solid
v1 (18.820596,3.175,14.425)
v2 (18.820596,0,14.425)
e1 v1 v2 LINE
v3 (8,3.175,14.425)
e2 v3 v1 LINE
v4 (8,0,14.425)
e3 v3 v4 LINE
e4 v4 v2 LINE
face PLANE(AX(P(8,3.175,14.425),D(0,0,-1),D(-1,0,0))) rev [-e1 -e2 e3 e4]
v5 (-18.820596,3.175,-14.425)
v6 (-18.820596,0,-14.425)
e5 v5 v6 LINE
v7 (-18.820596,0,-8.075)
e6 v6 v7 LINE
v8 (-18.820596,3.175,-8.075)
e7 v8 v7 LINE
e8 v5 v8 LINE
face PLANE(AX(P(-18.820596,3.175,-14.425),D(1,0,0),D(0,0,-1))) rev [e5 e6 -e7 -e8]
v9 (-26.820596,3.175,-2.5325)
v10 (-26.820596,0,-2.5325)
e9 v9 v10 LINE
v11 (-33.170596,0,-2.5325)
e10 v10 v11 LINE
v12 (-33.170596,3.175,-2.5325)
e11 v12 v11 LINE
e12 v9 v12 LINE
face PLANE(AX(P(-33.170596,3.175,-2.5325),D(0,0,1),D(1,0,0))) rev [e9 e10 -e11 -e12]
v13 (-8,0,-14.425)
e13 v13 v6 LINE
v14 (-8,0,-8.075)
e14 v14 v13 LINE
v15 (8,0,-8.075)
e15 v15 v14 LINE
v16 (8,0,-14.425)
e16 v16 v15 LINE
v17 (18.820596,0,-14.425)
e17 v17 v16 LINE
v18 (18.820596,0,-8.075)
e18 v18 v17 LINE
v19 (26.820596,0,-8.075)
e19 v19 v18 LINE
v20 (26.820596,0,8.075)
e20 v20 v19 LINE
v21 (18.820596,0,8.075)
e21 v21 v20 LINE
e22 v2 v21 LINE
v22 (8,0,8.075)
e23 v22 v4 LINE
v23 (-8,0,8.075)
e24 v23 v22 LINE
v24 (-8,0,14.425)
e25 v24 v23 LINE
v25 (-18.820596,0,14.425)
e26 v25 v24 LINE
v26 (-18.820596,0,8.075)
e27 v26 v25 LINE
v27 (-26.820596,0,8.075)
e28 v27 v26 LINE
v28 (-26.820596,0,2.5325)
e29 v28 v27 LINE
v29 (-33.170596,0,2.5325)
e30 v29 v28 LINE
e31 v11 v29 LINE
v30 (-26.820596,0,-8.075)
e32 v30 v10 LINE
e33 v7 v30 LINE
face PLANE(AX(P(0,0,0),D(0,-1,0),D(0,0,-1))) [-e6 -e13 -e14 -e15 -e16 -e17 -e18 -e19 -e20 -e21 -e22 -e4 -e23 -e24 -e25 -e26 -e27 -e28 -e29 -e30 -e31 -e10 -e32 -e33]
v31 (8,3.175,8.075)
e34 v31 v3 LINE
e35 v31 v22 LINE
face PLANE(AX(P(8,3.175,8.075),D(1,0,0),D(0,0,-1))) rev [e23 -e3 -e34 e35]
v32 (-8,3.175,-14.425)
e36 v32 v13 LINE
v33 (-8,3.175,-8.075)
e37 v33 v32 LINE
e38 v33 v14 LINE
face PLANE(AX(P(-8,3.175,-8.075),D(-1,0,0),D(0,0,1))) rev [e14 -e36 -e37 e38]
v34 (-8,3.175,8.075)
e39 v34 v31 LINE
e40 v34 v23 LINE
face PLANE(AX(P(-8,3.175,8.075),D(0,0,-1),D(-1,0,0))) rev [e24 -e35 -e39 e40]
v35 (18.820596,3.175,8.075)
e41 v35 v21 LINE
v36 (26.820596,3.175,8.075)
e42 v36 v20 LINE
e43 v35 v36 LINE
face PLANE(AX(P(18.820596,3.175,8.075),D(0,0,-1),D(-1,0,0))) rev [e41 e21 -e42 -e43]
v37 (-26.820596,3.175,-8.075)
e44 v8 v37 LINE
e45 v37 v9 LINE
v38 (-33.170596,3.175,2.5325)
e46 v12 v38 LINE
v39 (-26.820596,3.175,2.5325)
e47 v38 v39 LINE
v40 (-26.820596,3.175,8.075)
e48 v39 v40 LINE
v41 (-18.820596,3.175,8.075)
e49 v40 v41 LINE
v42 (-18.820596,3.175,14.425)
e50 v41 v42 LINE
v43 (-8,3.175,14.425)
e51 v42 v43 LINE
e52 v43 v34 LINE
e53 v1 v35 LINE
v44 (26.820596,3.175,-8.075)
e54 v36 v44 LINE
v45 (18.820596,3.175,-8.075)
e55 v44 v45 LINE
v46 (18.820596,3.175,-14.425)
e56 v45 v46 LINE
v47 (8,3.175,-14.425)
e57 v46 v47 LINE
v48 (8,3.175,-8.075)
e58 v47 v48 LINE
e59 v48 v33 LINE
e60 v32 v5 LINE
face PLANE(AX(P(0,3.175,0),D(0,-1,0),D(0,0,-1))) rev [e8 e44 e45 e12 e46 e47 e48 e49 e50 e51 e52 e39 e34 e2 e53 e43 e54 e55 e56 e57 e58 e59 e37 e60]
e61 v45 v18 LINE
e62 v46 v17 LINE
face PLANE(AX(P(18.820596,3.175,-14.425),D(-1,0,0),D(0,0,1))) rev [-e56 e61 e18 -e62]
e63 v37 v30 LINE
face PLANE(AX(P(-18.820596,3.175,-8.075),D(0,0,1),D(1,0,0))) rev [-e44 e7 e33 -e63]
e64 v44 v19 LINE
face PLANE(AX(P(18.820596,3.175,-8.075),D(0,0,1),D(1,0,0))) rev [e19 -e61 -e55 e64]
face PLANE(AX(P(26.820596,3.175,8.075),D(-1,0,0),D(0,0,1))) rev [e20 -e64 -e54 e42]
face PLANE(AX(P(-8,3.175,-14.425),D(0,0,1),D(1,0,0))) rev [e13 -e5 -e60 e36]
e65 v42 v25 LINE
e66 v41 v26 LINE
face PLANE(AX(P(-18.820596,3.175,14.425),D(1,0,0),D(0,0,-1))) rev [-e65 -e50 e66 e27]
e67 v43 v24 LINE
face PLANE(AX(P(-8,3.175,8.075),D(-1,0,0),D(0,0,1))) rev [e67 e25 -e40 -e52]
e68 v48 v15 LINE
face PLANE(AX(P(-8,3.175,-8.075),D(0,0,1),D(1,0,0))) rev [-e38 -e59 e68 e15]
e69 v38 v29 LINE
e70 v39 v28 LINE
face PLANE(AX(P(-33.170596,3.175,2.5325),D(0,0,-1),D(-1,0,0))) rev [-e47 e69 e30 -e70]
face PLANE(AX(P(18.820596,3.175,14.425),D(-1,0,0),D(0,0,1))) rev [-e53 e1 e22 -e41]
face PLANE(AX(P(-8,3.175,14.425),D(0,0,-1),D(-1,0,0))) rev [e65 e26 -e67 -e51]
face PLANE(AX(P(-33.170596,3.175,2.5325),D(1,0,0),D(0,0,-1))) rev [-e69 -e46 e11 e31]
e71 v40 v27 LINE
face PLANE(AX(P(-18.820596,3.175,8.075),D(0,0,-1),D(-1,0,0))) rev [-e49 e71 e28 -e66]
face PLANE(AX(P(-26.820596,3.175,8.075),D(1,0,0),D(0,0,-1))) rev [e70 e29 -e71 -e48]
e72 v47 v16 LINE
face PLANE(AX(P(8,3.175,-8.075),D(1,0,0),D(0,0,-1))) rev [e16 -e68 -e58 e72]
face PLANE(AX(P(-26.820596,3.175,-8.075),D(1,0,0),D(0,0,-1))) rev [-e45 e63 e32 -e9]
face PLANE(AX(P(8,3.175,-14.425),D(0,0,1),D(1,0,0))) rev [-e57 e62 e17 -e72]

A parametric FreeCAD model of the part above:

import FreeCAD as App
import Part
import Sketcher

V = App.Vector
Q = App.Units.Quantity

doc = App.newDocument("Part")
body = doc.addObject("PartDesign::Body", "Body")

sketch1 = body.newObject("Sketcher::SketchObject", "Sketch")
sketch1.AttachmentSupport = (doc.getObject("XZ_Plane"), [""])
sketch1.MapMode = "FlatFace"
sketch1.addGeometry([
    Part.LineSegment(V(-33, -3, 0), V(-33, 3, 0)),
    Part.LineSegment(V(-33, 3, 0), V(-27, 3, 0)),
    Part.LineSegment(V(-27, 3, 0), V(-27, 8, 0)),
    Part.LineSegment(V(-27, 8, 0), V(-19, 8, 0)),
    Part.LineSegment(V(-19, 8, 0), V(-19, 14, 0)),
    Part.LineSegment(V(-19, 14, 0), V(-8, 14, 0)),
    Part.LineSegment(V(-8, 14, 0), V(-8, 8, 0)),
    Part.LineSegment(V(-8, 8, 0), V(8, 8, 0)),
    Part.LineSegment(V(8, 8, 0), V(8, 14, 0)),
    Part.LineSegment(V(8, 14, 0), V(19, 14, 0)),
    Part.LineSegment(V(19, 14, 0), V(19, 8, 0)),
    Part.LineSegment(V(19, 8, 0), V(27, 8, 0)),
    Part.LineSegment(V(27, 8, 0), V(27, -8, 0)),
    Part.LineSegment(V(27, -8, 0), V(19, -8, 0)),
    Part.LineSegment(V(19, -8, 0), V(19, -14, 0)),
    Part.LineSegment(V(19, -14, 0), V(8, -14, 0)),
    Part.LineSegment(V(8, -14, 0), V(8, -8, 0)),
    Part.LineSegment(V(8, -8, 0), V(-8, -8, 0)),
    Part.LineSegment(V(-8, -8, 0), V(-8, -14, 0)),
    Part.LineSegment(V(-8, -14, 0), V(-19, -14, 0)),
    Part.LineSegment(V(-19, -14, 0), V(-19, -8, 0)),
    Part.LineSegment(V(-19, -8, 0), V(-27, -8, 0)),
    Part.LineSegment(V(-27, -8, 0), V(-27, -3, 0)),
    Part.LineSegment(V(-27, -3, 0), V(-33, -3, 0)),
], False)
sketch1.addConstraint([
    Sketcher.Constraint("Coincident", 0, 2, 1, 1),
    Sketcher.Constraint("Coincident", 1, 2, 2, 1),
    Sketcher.Constraint("Coincident", 2, 2, 3, 1),
    Sketcher.Constraint("Coincident", 3, 2, 4, 1),
    Sketcher.Constraint("Coincident", 4, 2, 5, 1),
    Sketcher.Constraint("Coincident", 5, 2, 6, 1),
    Sketcher.Constraint("Coincident", 6, 2, 7, 1),
    Sketcher.Constraint("Coincident", 7, 2, 8, 1),
    Sketcher.Constraint("Coincident", 8, 2, 9, 1),
    Sketcher.Constraint("Coincident", 9, 2, 10, 1),
    Sketcher.Constraint("Coincident", 10, 2, 11, 1),
    Sketcher.Constraint("Coincident", 11, 2, 12, 1),
    Sketcher.Constraint("Coincident", 12, 2, 13, 1),
    Sketcher.Constraint("Coincident", 13, 2, 14, 1),
    Sketcher.Constraint("Coincident", 14, 2, 15, 1),
    Sketcher.Constraint("Coincident", 15, 2, 16, 1),
    Sketcher.Constraint("Coincident", 16, 2, 17, 1),
    Sketcher.Constraint("Coincident", 17, 2, 18, 1),
    Sketcher.Constraint("Coincident", 18, 2, 19, 1),
    Sketcher.Constraint("Coincident", 19, 2, 20, 1),
    Sketcher.Constraint("Coincident", 20, 2, 21, 1),
    Sketcher.Constraint("Coincident", 21, 2, 22, 1),
    Sketcher.Constraint("Coincident", 22, 2, 23, 1),
    Sketcher.Constraint("Coincident", 23, 2, 0, 1),
    Sketcher.Constraint("Vertical", 0),
    Sketcher.Constraint("Horizontal", 1),
    Sketcher.Constraint("Vertical", 2),
    Sketcher.Constraint("Horizontal", 3),
    Sketcher.Constraint("Vertical", 4),
    Sketcher.Constraint("Horizontal", 5),
    Sketcher.Constraint("Vertical", 6),
    Sketcher.Constraint("Horizontal", 7),
    Sketcher.Constraint("Vertical", 8),
    Sketcher.Constraint("Horizontal", 9),
    Sketcher.Constraint("Vertical", 10),
    Sketcher.Constraint("Horizontal", 11),
    Sketcher.Constraint("Vertical", 12),
    Sketcher.Constraint("Horizontal", 13),
    Sketcher.Constraint("Vertical", 14),
    Sketcher.Constraint("Horizontal", 15),
    Sketcher.Constraint("Vertical", 16),
    Sketcher.Constraint("Horizontal", 17),
    Sketcher.Constraint("Vertical", 18),
    Sketcher.Constraint("Horizontal", 19),
    Sketcher.Constraint("Vertical", 20),
    Sketcher.Constraint("Horizontal", 21),
    Sketcher.Constraint("Vertical", 22),
    Sketcher.Constraint("Horizontal", 23),
    Sketcher.Constraint("Symmetric", 2, 2, 12, 2, -1, 1),
    Sketcher.Constraint("Symmetric", 4, 2, 14, 2, -1, 1),
    Sketcher.Constraint("Symmetric", 6, 2, 16, 2, -1, 1),
    Sketcher.Constraint("Symmetric", 8, 2, 18, 2, -1, 1),
    Sketcher.Constraint("Symmetric", 10, 2, 20, 2, -1, 1),
    Sketcher.Constraint("Symmetric", 5, 2, 8, 2, -2),
    Sketcher.Constraint("Symmetric", 3, 2, 10, 2, -2),
    Sketcher.Constraint("Symmetric", 1, 2, 22, 2, -1),
    Sketcher.Constraint("Horizontal", 3, 2, 6, 2),
    Sketcher.Constraint("Equal", 23, 4),
    Sketcher.Constraint("DistanceX", 3, 1, 3, 2, Q("8 mm")),
    Sketcher.Constraint("DistanceX", 7, 1, 7, 2, Q("16 mm")),
    Sketcher.Constraint("DistanceX", 1, 1, 1, 2, Q("6.35 mm")),
    Sketcher.Constraint("DistanceY", 12, 2, 12, 1, Q("16.15 mm")),
    Sketcher.Constraint("DistanceY", 0, 1, 0, 2, Q("5.065 mm")),
    Sketcher.Constraint("DistanceX", 5, 1, 5, 2, Q("10.820596 mm")),
])
pad1 = body.newObject("PartDesign::Pad", "Pad")
pad1.Profile = sketch1
pad1.Length = 3.175
pad1.Reversed = True

doc.recompute()
